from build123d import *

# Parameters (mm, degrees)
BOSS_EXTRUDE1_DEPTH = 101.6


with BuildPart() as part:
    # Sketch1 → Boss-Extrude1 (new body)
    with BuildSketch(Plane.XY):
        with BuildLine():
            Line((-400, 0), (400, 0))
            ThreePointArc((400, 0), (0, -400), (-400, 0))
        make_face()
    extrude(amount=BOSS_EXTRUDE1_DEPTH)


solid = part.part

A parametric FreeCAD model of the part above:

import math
import FreeCAD as App
import Part
import Sketcher

V = App.Vector
Q = App.Units.Quantity

doc = App.newDocument("Part")
body = doc.addObject("PartDesign::Body", "Body")

# Sketch on XY plane
sketch1 = body.newObject("Sketcher::SketchObject", "Sketch")
sketch1.AttachmentSupport = (doc.getObject("XY_Plane"), [""])
sketch1.MapMode = "FlatFace"
sketch1.addGeometry([
    Part.LineSegment(V(400, 0, 0), V(-400, 0, 0)),
    Part.ArcOfCircle(Part.Circle(V(0, 0, 0), V(0, 0, 1), 400), math.radians(180), math.radians(360)),
], False)
sketch1.addConstraint([
    Sketcher.Constraint("Coincident", 0, 1, 1, 2),
    Sketcher.Constraint("Coincident", 1, 1, 0, 2),
    Sketcher.Constraint("Horizontal", 0),
    Sketcher.Constraint("Coincident", 1, 3, -1, 1),
    Sketcher.Constraint("PointOnObject", 0, 1, -1),
    Sketcher.Constraint("Radius", 1, Q("400 mm")),
])
pad1 = body.newObject("PartDesign::Pad", "Pad")
pad1.Profile = sketch1
pad1.Length = 101.6

doc.recompute()
